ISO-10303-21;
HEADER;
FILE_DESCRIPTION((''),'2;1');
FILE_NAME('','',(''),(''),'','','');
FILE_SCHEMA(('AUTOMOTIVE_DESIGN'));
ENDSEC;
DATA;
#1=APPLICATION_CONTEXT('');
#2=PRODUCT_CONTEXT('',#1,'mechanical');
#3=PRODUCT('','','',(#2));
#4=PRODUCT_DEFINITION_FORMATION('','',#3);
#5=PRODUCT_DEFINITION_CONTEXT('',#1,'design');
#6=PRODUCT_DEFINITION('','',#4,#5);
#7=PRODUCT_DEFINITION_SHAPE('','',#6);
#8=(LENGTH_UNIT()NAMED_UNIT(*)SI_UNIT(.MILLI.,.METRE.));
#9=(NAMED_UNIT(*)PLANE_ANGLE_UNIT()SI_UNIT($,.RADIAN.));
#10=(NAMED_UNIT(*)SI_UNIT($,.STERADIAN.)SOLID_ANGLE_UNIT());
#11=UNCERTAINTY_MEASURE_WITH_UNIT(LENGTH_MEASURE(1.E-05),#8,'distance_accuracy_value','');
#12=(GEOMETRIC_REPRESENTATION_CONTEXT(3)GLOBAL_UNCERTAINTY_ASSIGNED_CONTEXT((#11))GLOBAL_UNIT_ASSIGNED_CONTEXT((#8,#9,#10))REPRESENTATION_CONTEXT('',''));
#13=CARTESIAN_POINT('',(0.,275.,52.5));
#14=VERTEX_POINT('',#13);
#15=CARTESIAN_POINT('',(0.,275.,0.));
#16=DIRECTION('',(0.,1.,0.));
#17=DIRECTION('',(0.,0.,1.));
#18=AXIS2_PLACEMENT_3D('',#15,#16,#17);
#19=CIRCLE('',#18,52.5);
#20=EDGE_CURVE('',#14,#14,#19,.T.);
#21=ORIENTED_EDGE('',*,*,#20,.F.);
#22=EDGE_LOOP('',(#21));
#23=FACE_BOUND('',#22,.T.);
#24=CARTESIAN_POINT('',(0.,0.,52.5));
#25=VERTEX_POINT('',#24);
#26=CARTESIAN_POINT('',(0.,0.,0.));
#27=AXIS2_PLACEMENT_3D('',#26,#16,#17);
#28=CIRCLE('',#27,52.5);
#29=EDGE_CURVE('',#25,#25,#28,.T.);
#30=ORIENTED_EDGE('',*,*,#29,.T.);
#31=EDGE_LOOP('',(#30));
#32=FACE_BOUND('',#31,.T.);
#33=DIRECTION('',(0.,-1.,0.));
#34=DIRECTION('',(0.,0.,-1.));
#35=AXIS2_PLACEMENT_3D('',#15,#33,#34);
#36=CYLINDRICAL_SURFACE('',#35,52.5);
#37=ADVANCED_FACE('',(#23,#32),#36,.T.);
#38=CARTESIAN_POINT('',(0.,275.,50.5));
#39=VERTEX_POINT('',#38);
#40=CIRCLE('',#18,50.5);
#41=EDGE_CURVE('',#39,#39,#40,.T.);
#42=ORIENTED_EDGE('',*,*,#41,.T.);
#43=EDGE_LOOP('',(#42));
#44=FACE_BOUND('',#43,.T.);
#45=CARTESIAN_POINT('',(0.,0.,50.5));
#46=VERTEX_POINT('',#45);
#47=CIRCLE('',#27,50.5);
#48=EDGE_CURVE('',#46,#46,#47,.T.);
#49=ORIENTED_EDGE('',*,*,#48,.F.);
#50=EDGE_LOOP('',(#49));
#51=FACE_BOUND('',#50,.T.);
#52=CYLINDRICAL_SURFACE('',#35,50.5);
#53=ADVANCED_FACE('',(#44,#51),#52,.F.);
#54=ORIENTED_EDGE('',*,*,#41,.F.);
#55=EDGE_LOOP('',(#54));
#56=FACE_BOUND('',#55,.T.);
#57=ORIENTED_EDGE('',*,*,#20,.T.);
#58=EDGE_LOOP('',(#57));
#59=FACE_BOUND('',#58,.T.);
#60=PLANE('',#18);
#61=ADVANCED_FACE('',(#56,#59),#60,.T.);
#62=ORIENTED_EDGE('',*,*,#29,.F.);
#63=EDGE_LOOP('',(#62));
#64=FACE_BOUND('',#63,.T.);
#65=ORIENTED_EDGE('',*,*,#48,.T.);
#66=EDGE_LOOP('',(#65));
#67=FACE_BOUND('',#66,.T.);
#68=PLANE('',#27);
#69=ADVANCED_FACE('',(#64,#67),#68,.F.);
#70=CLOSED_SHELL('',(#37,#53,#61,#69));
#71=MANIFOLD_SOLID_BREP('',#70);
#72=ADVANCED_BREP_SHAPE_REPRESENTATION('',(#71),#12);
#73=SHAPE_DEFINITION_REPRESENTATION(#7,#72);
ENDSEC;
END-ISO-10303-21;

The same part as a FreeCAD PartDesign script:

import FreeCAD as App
import Part
import Sketcher
Q = App.Units.Quantity

doc = App.newDocument("Part")
body = doc.addObject("PartDesign::Body", "Body")

# Sketch on XZ plane
sketch1 = body.newObject("Sketcher::SketchObject", "Sketch")
sketch1.AttachmentSupport = (doc.getObject("XZ_Plane"), [""])
sketch1.MapMode = "FlatFace"
sketch1.addGeometry(Part.Circle(App.Vector(0, 0, 0), App.Vector(0, 0, 1), 52), False)
sketch1.addGeometry(Part.Circle(App.Vector(0, 0, 0), App.Vector(0, 0, 1), 50), False)
sketch1.addConstraint(Sketcher.Constraint("Coincident", 0, 3, -1, 1))
sketch1.addConstraint(Sketcher.Constraint("Coincident", 1, 3, -1, 1))
sketch1.addConstraint(Sketcher.Constraint("Diameter", 0, Q("105 mm")))
sketch1.addConstraint(Sketcher.Constraint("Diameter", 1, Q("101 mm")))
pad1 = body.newObject("PartDesign::Pad", "Pad")
pad1.Profile = sketch1
pad1.Length = 275
pad1.Reversed = True

doc.recompute()
